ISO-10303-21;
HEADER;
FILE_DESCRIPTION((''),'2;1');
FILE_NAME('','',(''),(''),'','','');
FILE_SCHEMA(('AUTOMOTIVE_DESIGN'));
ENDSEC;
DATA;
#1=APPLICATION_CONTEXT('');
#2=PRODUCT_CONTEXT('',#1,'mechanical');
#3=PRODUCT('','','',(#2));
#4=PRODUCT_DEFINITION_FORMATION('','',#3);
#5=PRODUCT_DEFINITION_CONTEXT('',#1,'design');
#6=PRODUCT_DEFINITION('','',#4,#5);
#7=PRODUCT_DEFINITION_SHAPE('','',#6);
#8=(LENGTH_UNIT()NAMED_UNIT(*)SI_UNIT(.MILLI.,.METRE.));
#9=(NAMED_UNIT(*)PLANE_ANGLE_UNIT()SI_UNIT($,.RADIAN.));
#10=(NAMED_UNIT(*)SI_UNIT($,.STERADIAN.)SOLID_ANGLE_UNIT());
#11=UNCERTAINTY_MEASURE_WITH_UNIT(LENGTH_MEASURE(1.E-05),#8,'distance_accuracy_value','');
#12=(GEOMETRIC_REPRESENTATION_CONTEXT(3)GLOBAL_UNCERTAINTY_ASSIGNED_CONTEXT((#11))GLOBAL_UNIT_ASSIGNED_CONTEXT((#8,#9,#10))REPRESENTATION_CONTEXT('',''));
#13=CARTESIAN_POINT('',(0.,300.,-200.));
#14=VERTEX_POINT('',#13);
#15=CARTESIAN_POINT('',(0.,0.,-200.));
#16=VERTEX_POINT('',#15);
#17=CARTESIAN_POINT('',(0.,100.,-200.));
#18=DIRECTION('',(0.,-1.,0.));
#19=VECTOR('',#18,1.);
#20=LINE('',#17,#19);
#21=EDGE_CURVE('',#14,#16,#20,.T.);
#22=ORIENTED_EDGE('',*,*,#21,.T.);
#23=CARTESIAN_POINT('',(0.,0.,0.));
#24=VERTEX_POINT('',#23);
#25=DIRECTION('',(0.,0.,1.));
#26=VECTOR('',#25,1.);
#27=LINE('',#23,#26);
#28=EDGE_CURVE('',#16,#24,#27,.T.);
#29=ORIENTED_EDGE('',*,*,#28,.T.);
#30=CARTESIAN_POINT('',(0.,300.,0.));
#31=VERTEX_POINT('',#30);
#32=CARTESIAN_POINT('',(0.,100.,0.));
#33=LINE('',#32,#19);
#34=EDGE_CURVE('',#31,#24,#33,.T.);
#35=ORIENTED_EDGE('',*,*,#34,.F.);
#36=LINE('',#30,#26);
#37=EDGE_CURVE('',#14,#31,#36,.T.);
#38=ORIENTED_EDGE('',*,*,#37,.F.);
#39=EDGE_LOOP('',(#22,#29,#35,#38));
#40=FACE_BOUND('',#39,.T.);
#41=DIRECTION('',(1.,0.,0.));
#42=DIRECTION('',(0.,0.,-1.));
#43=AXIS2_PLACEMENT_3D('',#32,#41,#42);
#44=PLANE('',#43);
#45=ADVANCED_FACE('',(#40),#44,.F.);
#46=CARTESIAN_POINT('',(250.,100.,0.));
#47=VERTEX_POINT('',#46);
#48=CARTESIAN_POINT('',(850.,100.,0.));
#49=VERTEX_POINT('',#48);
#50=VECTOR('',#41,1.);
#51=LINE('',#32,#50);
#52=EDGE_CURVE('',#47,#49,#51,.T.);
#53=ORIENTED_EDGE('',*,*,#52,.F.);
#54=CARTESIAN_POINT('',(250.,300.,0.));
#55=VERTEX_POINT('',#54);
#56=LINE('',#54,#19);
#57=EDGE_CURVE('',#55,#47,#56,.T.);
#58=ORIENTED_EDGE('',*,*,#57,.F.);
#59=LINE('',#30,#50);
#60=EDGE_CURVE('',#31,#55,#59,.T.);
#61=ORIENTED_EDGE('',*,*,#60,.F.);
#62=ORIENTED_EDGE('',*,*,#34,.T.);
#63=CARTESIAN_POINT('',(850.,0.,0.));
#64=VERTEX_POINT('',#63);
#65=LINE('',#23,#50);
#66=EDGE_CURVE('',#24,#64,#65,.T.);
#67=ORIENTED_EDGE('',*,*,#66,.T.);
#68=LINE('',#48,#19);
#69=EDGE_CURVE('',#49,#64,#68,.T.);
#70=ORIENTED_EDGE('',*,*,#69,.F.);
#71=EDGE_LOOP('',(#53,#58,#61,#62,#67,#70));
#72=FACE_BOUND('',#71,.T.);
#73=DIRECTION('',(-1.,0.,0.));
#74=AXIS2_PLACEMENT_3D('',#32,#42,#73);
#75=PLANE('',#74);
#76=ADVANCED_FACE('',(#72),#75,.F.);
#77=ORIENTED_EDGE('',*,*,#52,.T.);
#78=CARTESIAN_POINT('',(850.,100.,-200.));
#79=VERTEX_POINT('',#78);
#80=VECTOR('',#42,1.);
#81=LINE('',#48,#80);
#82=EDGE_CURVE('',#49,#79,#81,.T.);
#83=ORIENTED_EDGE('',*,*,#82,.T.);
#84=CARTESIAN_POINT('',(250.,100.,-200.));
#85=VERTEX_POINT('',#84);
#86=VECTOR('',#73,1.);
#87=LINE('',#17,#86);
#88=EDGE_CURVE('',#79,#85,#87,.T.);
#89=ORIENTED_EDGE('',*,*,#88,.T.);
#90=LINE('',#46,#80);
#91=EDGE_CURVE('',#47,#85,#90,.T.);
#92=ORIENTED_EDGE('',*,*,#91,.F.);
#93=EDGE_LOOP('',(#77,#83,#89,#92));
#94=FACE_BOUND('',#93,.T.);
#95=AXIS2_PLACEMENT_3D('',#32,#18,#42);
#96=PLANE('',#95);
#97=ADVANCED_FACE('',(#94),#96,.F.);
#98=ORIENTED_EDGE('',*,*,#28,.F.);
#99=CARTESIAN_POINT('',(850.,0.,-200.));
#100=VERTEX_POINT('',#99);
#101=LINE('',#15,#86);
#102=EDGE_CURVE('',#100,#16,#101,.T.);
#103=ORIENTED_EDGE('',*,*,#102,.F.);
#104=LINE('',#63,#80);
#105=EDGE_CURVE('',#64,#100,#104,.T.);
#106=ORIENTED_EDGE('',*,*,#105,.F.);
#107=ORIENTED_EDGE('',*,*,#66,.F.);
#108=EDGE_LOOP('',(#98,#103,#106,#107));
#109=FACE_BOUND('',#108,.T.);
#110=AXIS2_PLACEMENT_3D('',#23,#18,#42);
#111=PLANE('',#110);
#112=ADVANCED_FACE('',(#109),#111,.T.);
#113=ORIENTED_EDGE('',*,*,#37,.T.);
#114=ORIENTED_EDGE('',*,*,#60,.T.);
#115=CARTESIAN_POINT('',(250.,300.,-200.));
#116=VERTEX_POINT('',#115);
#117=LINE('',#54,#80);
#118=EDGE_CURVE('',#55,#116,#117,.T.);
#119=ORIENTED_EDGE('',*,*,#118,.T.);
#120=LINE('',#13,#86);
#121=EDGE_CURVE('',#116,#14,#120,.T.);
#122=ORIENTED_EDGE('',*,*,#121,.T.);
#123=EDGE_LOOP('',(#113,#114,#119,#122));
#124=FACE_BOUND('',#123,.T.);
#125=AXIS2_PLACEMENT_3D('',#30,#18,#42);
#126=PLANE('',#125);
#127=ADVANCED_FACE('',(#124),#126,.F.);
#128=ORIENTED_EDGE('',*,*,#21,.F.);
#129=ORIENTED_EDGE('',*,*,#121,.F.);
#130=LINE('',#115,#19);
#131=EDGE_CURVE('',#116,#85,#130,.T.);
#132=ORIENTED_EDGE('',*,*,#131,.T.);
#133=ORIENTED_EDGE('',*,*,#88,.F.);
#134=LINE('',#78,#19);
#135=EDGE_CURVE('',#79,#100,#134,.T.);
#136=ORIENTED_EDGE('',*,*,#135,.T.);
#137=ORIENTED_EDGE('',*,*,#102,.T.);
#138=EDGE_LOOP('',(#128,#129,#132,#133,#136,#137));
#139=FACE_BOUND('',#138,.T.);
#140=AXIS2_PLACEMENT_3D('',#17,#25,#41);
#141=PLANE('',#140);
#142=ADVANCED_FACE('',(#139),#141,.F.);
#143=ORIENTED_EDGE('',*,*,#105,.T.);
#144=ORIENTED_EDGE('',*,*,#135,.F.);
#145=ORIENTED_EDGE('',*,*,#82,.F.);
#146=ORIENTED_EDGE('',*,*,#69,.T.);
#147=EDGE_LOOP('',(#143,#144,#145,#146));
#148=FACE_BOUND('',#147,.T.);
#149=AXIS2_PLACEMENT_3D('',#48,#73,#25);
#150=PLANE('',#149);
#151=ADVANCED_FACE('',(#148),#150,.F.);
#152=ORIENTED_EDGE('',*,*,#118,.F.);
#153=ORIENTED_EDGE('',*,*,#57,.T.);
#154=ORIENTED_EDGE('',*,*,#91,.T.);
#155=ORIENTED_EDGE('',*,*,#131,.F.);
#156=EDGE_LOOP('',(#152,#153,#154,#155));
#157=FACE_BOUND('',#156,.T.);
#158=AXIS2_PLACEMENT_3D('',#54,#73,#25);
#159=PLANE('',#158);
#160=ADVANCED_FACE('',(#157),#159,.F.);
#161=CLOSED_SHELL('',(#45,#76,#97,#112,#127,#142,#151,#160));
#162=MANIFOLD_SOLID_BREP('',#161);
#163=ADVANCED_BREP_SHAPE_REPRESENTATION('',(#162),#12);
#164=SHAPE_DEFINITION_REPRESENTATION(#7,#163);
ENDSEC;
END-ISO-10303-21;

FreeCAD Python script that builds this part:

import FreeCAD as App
import Part
import Sketcher
from FreeCAD import Vector


def add_polygon(sketch, points):
    """Adds a closed chain of lines whose ends are joined by coincident constraints."""
    first, n = sketch.GeometryCount, len(points)
    for a, b in zip(points, points[1:] + points[:1]):
        sketch.addGeometry(Part.LineSegment(App.Vector(*a, 0), App.Vector(*b, 0)), False)
    for i in range(n):
        sketch.addConstraint(Sketcher.Constraint("Coincident", first + i, 2, first + (i + 1) % n, 1))

doc = App.newDocument("Part")
body = doc.addObject("PartDesign::Body", "Body")

# Sketch on XZ plane
sketch1 = body.newObject("Sketcher::SketchObject", "Sketch")
sketch1.AttachmentSupport = (doc.getObject("XZ_Plane"), [""])
sketch1.MapMode = "FlatFace"
add_polygon(sketch1, [(0, -200), (0, 0), (850, 0), (850, -200)])  # lines 0-3
sketch1.addConstraint([
    Sketcher.Constraint("Vertical", 0),
    Sketcher.Constraint("Horizontal", 1),
    Sketcher.Constraint("Vertical", 2),
    Sketcher.Constraint("Horizontal", 3),
    Sketcher.Constraint("Coincident", 0, 2, -1, 1),
    Sketcher.Constraint("DistanceX", 1, 1, 1, 2, 850.0),
    Sketcher.Constraint("DistanceY", 0, 1, 0, 2, 200.0),
])
pad1 = body.newObject("PartDesign::Pad", "Pad")
pad1.Profile = sketch1
pad1.Length = 100
pad1.Reversed = True

# Sketch on XZ plane
sketch2 = body.newObject("Sketcher::SketchObject", "Sketch001")
sketch2.AttachmentSupport = (doc.getObject("XZ_Plane"), [""])
sketch2.MapMode = "FlatFace"
sketch2.AttachmentOffset = App.Placement(Vector(0, 0, -100), App.Rotation())
add_polygon(sketch2, [(0, -200), (0, 0), (250, 0), (250, -200)])  # lines 0-3
sketch2.addConstraint([
    Sketcher.Constraint("Vertical", 0),
    Sketcher.Constraint("Horizontal", 1),
    Sketcher.Constraint("Vertical", 2),
    Sketcher.Constraint("Horizontal", 3),
    Sketcher.Constraint("Coincident", 0, 2, -1, 1),
    Sketcher.Constraint("DistanceX", 1, 1, 1, 2, 250.0),
    Sketcher.Constraint("DistanceY", 0, 1, 0, 2, 200.0),
])
pad2 = body.newObject("PartDesign::Pad", "Pad001")
pad2.Profile = sketch2
pad2.Length = 200
pad2.Reversed = True

doc.recompute()
